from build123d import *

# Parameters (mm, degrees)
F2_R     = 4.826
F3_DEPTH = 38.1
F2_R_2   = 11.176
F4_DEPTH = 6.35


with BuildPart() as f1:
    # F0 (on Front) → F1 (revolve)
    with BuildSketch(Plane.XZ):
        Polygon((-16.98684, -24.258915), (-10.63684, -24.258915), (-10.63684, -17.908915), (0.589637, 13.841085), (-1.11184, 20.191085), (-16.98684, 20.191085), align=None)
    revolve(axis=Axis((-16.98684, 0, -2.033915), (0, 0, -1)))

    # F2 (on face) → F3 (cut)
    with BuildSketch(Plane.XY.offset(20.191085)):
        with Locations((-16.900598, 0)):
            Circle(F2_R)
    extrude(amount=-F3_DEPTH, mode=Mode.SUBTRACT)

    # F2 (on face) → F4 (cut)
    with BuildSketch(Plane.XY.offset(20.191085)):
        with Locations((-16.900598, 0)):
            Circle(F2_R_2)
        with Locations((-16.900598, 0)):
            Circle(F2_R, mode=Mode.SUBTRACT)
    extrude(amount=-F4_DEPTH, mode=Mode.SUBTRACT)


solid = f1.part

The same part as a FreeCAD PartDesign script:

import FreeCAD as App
import Part
import Sketcher
from FreeCAD import Vector
Q = App.Units.Quantity


def add_polygon(sketch, points):
    """Adds a closed chain of lines whose ends are joined by coincident constraints."""
    first, n = sketch.GeometryCount, len(points)
    for a, b in zip(points, points[1:] + points[:1]):
        sketch.addGeometry(Part.LineSegment(App.Vector(*a, 0), App.Vector(*b, 0)), False)
    for i in range(n):
        sketch.addConstraint(Sketcher.Constraint("Coincident", first + i, 2, first + (i + 1) % n, 1))

doc = App.newDocument("Part")
body = doc.addObject("PartDesign::Body", "Body")

sketch1 = body.newObject("Sketcher::SketchObject", "Sketch")
sketch1.AttachmentSupport = (doc.getObject("XZ_Plane"), [""])
sketch1.MapMode = "FlatFace"
add_polygon(sketch1, [(-17, -24), (-11, -24), (-11, -18), (1, 14), (-1, 20), (-17, 20)])
sketch1.addGeometry(Part.LineSegment(Vector(-17, 20, 0), Vector(-17, -24, 0)), True)
sketch1.addConstraint([
    Sketcher.Constraint("Horizontal", 0),
    Sketcher.Constraint("Vertical", 1),
    Sketcher.Constraint("Horizontal", 4),
    Sketcher.Constraint("Vertical", 5),
    Sketcher.Constraint("Vertical", 6),
    Sketcher.Constraint("Coincident", 6, 1, 4, 2),
    Sketcher.Constraint("Horizontal", 0, 2, 6, 2),
    Sketcher.Constraint("Equal", 0, 1),
    Sketcher.Constraint("Angle", 3, Q("104.999997 deg")),
    Sketcher.Constraint("DistanceX", 0, 1, 0, 2, Q("0.25 in")),
    Sketcher.Constraint("DistanceY", 5, 2, 5, 1, Q("1.75 in")),
    Sketcher.Constraint("DistanceY", 0, 2, 2, 2, Q("1.5 in")),
    Sketcher.Constraint("DistanceX", 4, 2, 4, 1, Q("0.625 in")),
    Sketcher.Constraint("DistanceX", 0, 2, -1, 1, Q("10.63684 mm")),
    Sketcher.Constraint("DistanceY", 0, 2, -1, 1, Q("24.258915 mm")),
])
revolution = body.newObject("PartDesign::Revolution", "Revolution")
revolution.Profile = sketch1
revolution.ReferenceAxis = (sketch1, ["Axis0"])
revolution.Angle = 360

sketch2 = body.newObject("Sketcher::SketchObject", "Sketch001")
sketch2.AttachmentSupport = (doc.getObject("XY_Plane"), [""])
sketch2.MapMode = "FlatFace"
sketch2.AttachmentOffset = App.Placement(Vector(0, 0, 20.191085), App.Rotation())
sketch2.addGeometry(Part.Circle(Vector(-16.9, 0, 0), Vector(0, 0, 1), 4.8), False)
sketch2.addConstraint([
    Sketcher.Constraint("PointOnObject", 0, 3, -1),
    Sketcher.Constraint("Diameter", 0, Q("0.38 in")),
    Sketcher.Constraint("DistanceX", 0, 3, -1, 1, Q("16.900598 mm")),
])
pocket1 = body.newObject("PartDesign::Pocket", "Pocket")
pocket1.Profile = sketch2
pocket1.Length = Q("1.5 in")

sketch3 = body.newObject("Sketcher::SketchObject", "Sketch002")
sketch3.AttachmentSupport = (doc.getObject("XY_Plane"), [""])
sketch3.MapMode = "FlatFace"
sketch3.AttachmentOffset = App.Placement(Vector(0, 0, 20.191085), App.Rotation())
sketch3.addGeometry([
    Part.Circle(Vector(-16.9, 0, 0), Vector(0, 0, 1), 11.2),
    Part.Circle(Vector(-16.9, 0, 0), Vector(0, 0, 1), 4.8),
], False)
sketch3.addConstraint([
    Sketcher.Constraint("Coincident", 1, 3, 0, 3),
    Sketcher.Constraint("PointOnObject", 0, 3, -1),
    Sketcher.Constraint("Diameter", 0, Q("0.88 in")),
    Sketcher.Constraint("Diameter", 1, Q("0.38 in")),
    Sketcher.Constraint("DistanceX", 0, 3, -1, 1, Q("16.900598 mm")),
])
pocket2 = body.newObject("PartDesign::Pocket", "Pocket001")
pocket2.Profile = sketch3
pocket2.Length = Q("0.25 in")

doc.recompute()
